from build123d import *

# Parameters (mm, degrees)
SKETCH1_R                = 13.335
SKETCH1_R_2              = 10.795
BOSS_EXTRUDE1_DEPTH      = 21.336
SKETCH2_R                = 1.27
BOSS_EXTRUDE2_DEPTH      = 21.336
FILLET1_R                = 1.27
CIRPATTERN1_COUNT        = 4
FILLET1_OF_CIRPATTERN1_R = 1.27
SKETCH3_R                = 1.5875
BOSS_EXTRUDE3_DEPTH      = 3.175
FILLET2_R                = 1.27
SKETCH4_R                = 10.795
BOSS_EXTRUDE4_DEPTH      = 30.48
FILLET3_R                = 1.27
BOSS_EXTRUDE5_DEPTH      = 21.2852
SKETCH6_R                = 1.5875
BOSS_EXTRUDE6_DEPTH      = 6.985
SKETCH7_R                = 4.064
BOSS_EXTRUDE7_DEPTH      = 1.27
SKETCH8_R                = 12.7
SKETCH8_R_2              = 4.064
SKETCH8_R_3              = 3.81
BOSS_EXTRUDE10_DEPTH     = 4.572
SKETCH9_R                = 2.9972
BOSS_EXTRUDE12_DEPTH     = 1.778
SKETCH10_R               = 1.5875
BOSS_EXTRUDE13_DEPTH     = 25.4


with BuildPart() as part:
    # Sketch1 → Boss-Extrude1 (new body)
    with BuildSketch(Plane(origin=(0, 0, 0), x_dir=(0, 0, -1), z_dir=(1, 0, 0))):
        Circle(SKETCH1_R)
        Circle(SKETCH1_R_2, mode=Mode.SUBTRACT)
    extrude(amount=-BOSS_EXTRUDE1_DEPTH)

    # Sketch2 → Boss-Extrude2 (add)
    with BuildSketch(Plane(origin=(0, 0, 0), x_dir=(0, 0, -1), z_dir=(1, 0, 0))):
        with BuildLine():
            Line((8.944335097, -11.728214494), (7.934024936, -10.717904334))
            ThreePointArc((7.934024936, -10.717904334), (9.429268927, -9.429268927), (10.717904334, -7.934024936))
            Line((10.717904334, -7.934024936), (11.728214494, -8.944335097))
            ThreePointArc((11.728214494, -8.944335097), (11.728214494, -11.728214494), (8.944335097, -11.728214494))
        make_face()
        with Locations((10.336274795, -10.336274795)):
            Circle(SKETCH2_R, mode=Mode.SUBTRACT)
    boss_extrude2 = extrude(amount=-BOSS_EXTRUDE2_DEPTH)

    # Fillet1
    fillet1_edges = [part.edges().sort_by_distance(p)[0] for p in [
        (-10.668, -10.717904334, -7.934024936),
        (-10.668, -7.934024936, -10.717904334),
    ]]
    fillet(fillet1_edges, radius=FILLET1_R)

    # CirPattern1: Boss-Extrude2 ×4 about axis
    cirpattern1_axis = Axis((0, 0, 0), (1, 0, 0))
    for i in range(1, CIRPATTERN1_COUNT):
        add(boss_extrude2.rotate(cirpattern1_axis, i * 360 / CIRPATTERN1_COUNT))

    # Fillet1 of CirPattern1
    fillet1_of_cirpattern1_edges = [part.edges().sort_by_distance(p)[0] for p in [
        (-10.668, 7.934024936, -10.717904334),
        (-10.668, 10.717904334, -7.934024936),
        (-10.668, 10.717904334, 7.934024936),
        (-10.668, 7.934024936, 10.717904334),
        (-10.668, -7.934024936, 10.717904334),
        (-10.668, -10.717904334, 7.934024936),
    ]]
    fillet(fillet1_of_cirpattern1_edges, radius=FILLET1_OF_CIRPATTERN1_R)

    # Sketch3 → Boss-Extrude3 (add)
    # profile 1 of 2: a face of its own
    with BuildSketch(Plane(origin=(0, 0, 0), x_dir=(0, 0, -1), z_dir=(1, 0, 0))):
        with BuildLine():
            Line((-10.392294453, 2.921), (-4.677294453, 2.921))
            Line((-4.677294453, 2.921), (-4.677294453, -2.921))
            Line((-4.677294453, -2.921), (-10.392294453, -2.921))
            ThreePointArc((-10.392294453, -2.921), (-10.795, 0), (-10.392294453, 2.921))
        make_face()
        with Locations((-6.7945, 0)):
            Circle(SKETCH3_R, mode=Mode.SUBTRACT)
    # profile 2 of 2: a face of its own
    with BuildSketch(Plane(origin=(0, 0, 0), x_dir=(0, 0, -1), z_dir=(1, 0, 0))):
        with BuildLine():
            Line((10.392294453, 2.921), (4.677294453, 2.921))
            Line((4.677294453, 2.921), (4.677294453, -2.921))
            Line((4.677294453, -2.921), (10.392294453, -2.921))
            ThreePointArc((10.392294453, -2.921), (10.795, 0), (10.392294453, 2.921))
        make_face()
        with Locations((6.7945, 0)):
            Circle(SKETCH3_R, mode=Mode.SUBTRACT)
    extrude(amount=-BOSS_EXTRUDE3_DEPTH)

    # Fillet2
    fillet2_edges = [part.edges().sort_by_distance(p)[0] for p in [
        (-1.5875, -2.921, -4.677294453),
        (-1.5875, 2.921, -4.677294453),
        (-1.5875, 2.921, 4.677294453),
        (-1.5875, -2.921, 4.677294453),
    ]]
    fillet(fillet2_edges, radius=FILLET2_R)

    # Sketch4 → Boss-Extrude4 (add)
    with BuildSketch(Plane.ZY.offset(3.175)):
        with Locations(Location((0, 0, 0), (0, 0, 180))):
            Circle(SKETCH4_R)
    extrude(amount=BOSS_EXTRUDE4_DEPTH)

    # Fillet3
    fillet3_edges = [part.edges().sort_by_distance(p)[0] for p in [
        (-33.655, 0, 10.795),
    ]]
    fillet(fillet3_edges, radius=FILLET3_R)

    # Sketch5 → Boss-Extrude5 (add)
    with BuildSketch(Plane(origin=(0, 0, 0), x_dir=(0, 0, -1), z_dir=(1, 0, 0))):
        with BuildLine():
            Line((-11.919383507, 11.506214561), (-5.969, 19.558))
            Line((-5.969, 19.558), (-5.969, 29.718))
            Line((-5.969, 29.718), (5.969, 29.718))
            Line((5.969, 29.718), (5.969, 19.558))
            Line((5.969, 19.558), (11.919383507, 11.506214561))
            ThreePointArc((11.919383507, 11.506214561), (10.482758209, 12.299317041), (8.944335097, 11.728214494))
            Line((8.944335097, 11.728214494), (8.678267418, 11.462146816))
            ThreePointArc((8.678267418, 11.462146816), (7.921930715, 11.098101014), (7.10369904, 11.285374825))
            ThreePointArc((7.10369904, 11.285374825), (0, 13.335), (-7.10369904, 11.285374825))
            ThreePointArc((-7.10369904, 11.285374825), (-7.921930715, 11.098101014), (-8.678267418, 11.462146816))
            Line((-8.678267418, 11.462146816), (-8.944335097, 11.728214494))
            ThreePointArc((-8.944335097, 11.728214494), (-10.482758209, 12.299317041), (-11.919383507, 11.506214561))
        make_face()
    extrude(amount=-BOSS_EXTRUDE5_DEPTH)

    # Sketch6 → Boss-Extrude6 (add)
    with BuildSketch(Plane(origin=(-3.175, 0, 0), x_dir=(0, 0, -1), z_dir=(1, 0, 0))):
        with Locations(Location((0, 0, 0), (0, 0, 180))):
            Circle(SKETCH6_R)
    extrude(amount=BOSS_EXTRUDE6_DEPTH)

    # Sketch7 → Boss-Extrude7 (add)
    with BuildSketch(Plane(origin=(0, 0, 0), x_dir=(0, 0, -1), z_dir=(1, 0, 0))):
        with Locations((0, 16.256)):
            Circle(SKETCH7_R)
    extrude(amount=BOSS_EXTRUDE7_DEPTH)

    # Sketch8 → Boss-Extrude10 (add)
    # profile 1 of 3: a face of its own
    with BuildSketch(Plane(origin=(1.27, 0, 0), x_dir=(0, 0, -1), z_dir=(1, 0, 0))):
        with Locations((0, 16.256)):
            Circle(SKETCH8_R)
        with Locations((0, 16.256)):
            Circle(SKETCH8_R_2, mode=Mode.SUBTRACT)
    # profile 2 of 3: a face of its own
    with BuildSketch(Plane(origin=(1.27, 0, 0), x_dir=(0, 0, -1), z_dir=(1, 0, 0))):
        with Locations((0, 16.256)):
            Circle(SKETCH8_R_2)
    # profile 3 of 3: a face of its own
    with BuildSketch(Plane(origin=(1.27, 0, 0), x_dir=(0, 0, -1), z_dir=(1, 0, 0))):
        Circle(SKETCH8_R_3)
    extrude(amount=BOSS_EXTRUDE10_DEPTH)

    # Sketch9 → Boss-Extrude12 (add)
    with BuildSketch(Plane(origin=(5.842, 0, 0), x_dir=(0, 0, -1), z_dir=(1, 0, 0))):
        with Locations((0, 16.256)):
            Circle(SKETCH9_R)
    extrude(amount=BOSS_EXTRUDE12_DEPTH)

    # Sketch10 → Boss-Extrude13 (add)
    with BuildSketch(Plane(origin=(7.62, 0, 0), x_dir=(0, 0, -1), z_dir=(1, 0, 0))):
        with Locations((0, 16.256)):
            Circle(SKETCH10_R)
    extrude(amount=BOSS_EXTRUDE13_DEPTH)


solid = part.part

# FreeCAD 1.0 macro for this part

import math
import FreeCAD as App
import Part
import Sketcher

V = App.Vector
Q = App.Units.Quantity


def edges_at(feature, points):
    """Names of the edges that pass closest to the given points."""
    edges = feature.Shape.Edges
    near = lambda p: min(range(len(edges)), key=lambda i: edges[i].distToShape(Part.Vertex(*p))[0])
    return sorted({f"Edge{near(p) + 1}" for p in points})

doc = App.newDocument("Part")
body = doc.addObject("PartDesign::Body", "Body")

sketch1 = body.newObject("Sketcher::SketchObject", "Sketch")
sketch1.AttachmentSupport = (doc.getObject("YZ_Plane"), [""])
sketch1.MapMode = "FlatFace"
sketch1.addGeometry([
    Part.Circle(V(0, 0, 0), V(0, 0, 1), 13.335),
    Part.Circle(V(0, 0, 0), V(0, 0, 1), 10.795),
], False)
sketch1.addConstraint([
    Sketcher.Constraint("Coincident", 0, 3, -1, 1),
    Sketcher.Constraint("Coincident", 1, 3, -1, 1),
    Sketcher.Constraint("Diameter", 0, Q("1.05 in")),
    Sketcher.Constraint("Diameter", 1, Q("0.85 in")),
])
pad1 = body.newObject("PartDesign::Pad", "Pad")
pad1.Profile = sketch1
pad1.Length = Q("0.84 in")
pad1.Reversed = True

sketch2 = body.newObject("Sketcher::SketchObject", "Sketch001")
sketch2.AttachmentSupport = (doc.getObject("YZ_Plane"), [""])
sketch2.MapMode = "FlatFace"
sketch2.addGeometry([
    Part.LineSegment(V(-10.717904, -7.934025, 0), V(-11.728214, -8.944335, 0)),
    Part.ArcOfCircle(Part.Circle(V(-10.336275, -10.336275, 0), V(0, 0, 1), 1.9685), math.radians(135), math.radians(315)),
    Part.LineSegment(V(-8.944335, -11.728214, 0), V(-7.934025, -10.717904, 0)),
    Part.ArcOfCircle(Part.Circle(V(0, 0, 0), V(0, 0, 1), 13.335), math.radians(-143.488972), math.radians(-126.511028)),
    Part.Circle(V(-10.336275, -10.336275, 0), V(0, 0, 1), 1.27),
], False)
sketch2.addConstraint([
    Sketcher.Constraint("Tangent", 0, 2, 1, 1),
    Sketcher.Constraint("Tangent", 1, 2, 2, 1),
    Sketcher.Constraint("Coincident", 2, 2, 3, 2),
    Sketcher.Constraint("Coincident", 3, 1, 0, 1),
    Sketcher.Constraint("Coincident", 3, 3, -1, 1),
    Sketcher.Constraint("Coincident", 4, 3, 1, 3),
    Sketcher.Constraint("Parallel", 0, 2),
    Sketcher.Constraint("Equal", 0, 2),
    Sketcher.Constraint("Diameter", 4, Q("0.1 in")),
    Sketcher.Constraint("Angle", 0, Q("-135 deg")),
    Sketcher.Constraint("Radius", 3, Q("0.525 in")),
    Sketcher.Constraint("Radius", 1, Q("0.0775 in")),
    Sketcher.Constraint("DistanceX", 1, 2, 2, 2, 1.01031),
])
pad2 = body.newObject("PartDesign::Pad", "Pad001")
pad2.Profile = sketch2
pad2.Length = Q("0.84 in")
pad2.Reversed = True
doc.recompute()

fillet = body.newObject("PartDesign::Fillet", "Fillet")
fillet.Base = (pad2, edges_at(pad2, [(-10.668, -10.718, -7.934), (-10.668, -7.934, -10.718)]))
fillet.Radius = Q("0.05 in")
doc.recompute()

polarpattern = body.newObject("PartDesign::PolarPattern", "PolarPattern")
polarpattern.Originals = [pad2]
polarpattern.Axis = (doc.getObject("X_Axis"), [""])
polarpattern.Angle = 360
polarpattern.Occurrences = 4
body.Tip = polarpattern
doc.recompute()

fillet2 = body.newObject("PartDesign::Fillet", "Fillet001")
fillet2.Base = (polarpattern, edges_at(polarpattern, [
    (-10.668, 7.934, -10.718),
    (-10.668, 10.718, -7.934),
    (-10.668, 10.718, 7.934),
    (-10.668, 7.934, 10.718),
    (-10.668, -7.934, 10.718),
    (-10.668, -10.718, 7.934),
]))
fillet2.Radius = Q("0.05 in")

sketch3 = body.newObject("Sketcher::SketchObject", "Sketch002")
sketch3.AttachmentSupport = (doc.getObject("YZ_Plane"), [""])
sketch3.MapMode = "FlatFace"
sketch3.addGeometry([
    Part.LineSegment(V(2.921, 4.677294, 0), V(2.921, 10.392294, 0)),
    Part.ArcOfCircle(Part.Circle(V(0, 0, 0), V(0, 0, 1), 10.795), math.radians(74.300727), math.radians(105.699273)),
    Part.LineSegment(V(-2.921, 10.392294, 0), V(-2.921, 4.677294, 0)),
    Part.LineSegment(V(-2.921, 4.677294, 0), V(2.921, 4.677294, 0)),
    Part.Circle(V(0, 6.7945, 0), V(0, 0, 1), 1.5875),
    Part.LineSegment(V(2.921, -10.392294, 0), V(2.921, -4.677294, 0)),
    Part.LineSegment(V(2.921, -4.677294, 0), V(-2.921, -4.677294, 0)),
    Part.LineSegment(V(-2.921, -4.677294, 0), V(-2.921, -10.392294, 0)),
    Part.ArcOfCircle(Part.Circle(V(0, 0, 0), V(0, 0, 1), 10.795), math.radians(-105.699273), math.radians(-74.300727)),
    Part.Circle(V(0, -6.7945, 0), V(0, 0, 1), 1.5875),
], False)
sketch3.addConstraint([
    Sketcher.Constraint("Coincident", 0, 2, 1, 1),
    Sketcher.Constraint("Coincident", 1, 2, 2, 1),
    Sketcher.Constraint("Coincident", 2, 2, 3, 1),
    Sketcher.Constraint("Coincident", 3, 2, 0, 1),
    Sketcher.Constraint("Coincident", 5, 2, 6, 1),
    Sketcher.Constraint("Coincident", 6, 2, 7, 1),
    Sketcher.Constraint("Coincident", 7, 2, 8, 1),
    Sketcher.Constraint("Coincident", 8, 2, 5, 1),
    Sketcher.Constraint("Vertical", 0),
    Sketcher.Constraint("Vertical", 2),
    Sketcher.Constraint("Horizontal", 3),
    Sketcher.Constraint("Vertical", 5),
    Sketcher.Constraint("Horizontal", 6),
    Sketcher.Constraint("Vertical", 7),
    Sketcher.Constraint("Coincident", 1, 3, -1, 1),
    Sketcher.Constraint("Coincident", 8, 3, -1, 1),
    Sketcher.Constraint("Equal", 1, 8),
    Sketcher.Constraint("Equal", 4, 9),
    Sketcher.Constraint("Symmetric", 4, 3, 9, 3, -1, 1),
    Sketcher.Constraint("Symmetric", 2, 2, 5, 2, -1, 1),
    Sketcher.Constraint("PointOnObject", 4, 3, -2),
    Sketcher.Constraint("Horizontal", 0, 2, 1, 2),
    Sketcher.Constraint("Horizontal", 7, 2, 8, 2),
    Sketcher.Constraint("Diameter", 4, Q("0.125 in")),
    Sketcher.Constraint("Radius", 1, Q("0.425 in")),
    Sketcher.Constraint("DistanceX", 3, 1, 3, 2, Q("0.23 in")),
    Sketcher.Constraint("DistanceY", 0, 1, 0, 2, Q("0.225 in")),
    Sketcher.Constraint("DistanceY", 9, 3, 4, 3, Q("0.535 in")),
])
pad3 = body.newObject("PartDesign::Pad", "Pad002")
pad3.Profile = sketch3
pad3.Length = Q("0.125 in")
pad3.Reversed = True
doc.recompute()

fillet3 = body.newObject("PartDesign::Fillet", "Fillet002")
fillet3.Base = (pad3, edges_at(pad3, [
    (-1.587, -2.921, -4.677),
    (-1.587, 2.921, -4.677),
    (-1.587, 2.921, 4.677),
    (-1.587, -2.921, 4.677),
]))
fillet3.Radius = Q("0.05 in")

sketch4 = body.newObject("Sketcher::SketchObject", "Sketch003")
sketch4.AttachmentSupport = (doc.getObject("YZ_Plane"), [""])
sketch4.MapMode = "FlatFace"
sketch4.AttachmentOffset = App.Placement(V(0, 0, -0.125 * 25.4), App.Rotation())
sketch4.addGeometry(Part.Circle(V(0, 0, 0), V(0, 0, 1), 10.795), False)
sketch4.addConstraint([
    Sketcher.Constraint("Coincident", 0, 3, -1, 1),
    Sketcher.Constraint("Diameter", 0, Q("0.85 in")),
])
pad4 = body.newObject("PartDesign::Pad", "Pad003")
pad4.Profile = sketch4
pad4.Length = Q("1.2 in")
pad4.Reversed = True
doc.recompute()

fillet4 = body.newObject("PartDesign::Fillet", "Fillet003")
fillet4.Base = (pad4, edges_at(pad4, [(-33.655, 0, 10.795)]))
fillet4.Radius = Q("0.05 in")

sketch5 = body.newObject("Sketcher::SketchObject", "Sketch004")
sketch5.AttachmentSupport = (doc.getObject("YZ_Plane"), [""])
sketch5.MapMode = "FlatFace"
sketch5.addGeometry([
    Part.LineSegment(V(19.558, 5.969, 0), V(11.506215, 11.919384, 0)),
    Part.ArcOfCircle(Part.Circle(V(10.336275, 10.336275, 0), V(0, 0, 1), 1.9685), math.radians(-45), math.radians(53.535074)),
    Part.LineSegment(V(11.728214, 8.944335, 0), V(11.462147, 8.678267, 0)),
    Part.ArcOfCircle(Part.Circle(V(12.360172, 7.780242, 0), V(0, 0, 1), 1.27), math.radians(135), math.radians(212.188799)),
    Part.ArcOfCircle(Part.Circle(V(0, 0, 0), V(0, 0, 1), 13.335), math.radians(-32.188799), math.radians(32.188799)),
    Part.ArcOfCircle(Part.Circle(V(12.360172, -7.780242, 0), V(0, 0, 1), 1.27), math.radians(147.811201), math.radians(225)),
    Part.LineSegment(V(11.462147, -8.678267, 0), V(11.728214, -8.944335, 0)),
    Part.ArcOfCircle(Part.Circle(V(10.336275, -10.336275, 0), V(0, 0, 1), 1.9685), math.radians(-53.535074), math.radians(45)),
    Part.LineSegment(V(11.506215, -11.919384, 0), V(19.558, -5.969, 0)),
    Part.LineSegment(V(19.558, -5.969, 0), V(29.718, -5.969, 0)),
    Part.LineSegment(V(29.718, -5.969, 0), V(29.718, 5.969, 0)),
    Part.LineSegment(V(29.718, 5.969, 0), V(19.558, 5.969, 0)),
], False)
sketch5.addConstraint([
    Sketcher.Constraint("Tangent", 0, 2, 1, 2),
    Sketcher.Constraint("Tangent", 1, 1, 2, 1),
    Sketcher.Constraint("Tangent", 2, 2, 3, 1),
    Sketcher.Constraint("Tangent", 3, 2, 4, 2),
    Sketcher.Constraint("Tangent", 4, 1, 5, 1),
    Sketcher.Constraint("Tangent", 5, 2, 6, 1),
    Sketcher.Constraint("Tangent", 6, 2, 7, 2),
    Sketcher.Constraint("Tangent", 7, 1, 8, 1),
    Sketcher.Constraint("Coincident", 8, 2, 9, 1),
    Sketcher.Constraint("Coincident", 9, 2, 10, 1),
    Sketcher.Constraint("Coincident", 10, 2, 11, 1),
    Sketcher.Constraint("Coincident", 11, 2, 0, 1),
    Sketcher.Constraint("Horizontal", 9),
    Sketcher.Constraint("Vertical", 10),
    Sketcher.Constraint("Horizontal", 11),
    Sketcher.Constraint("Coincident", 4, 3, -1, 1),
    Sketcher.Constraint("Equal", 3, 5),
    Sketcher.Constraint("Equal", 1, 7),
    Sketcher.Constraint("Symmetric", 1, 3, 7, 3, -1),
    Sketcher.Constraint("Symmetric", 8, 2, 11, 2, -1),
    Sketcher.Constraint("Perpendicular", 2, 6),
    Sketcher.Constraint("Vertical", 3, 3, 5, 3),
    Sketcher.Constraint("Radius", 3, Q("0.05 in")),
    Sketcher.Constraint("DistanceX", 9, 1, 9, 2, Q("0.4 in")),
    Sketcher.Constraint("Radius", 4, Q("0.525 in")),
    Sketcher.Constraint("DistanceY", 10, 1, 10, 2, Q("0.47 in")),
    Sketcher.Constraint("Radius", 1, Q("0.0775 in")),
    Sketcher.Constraint("DistanceX", -1, 1, 8, 2, Q("0.77 in")),
    Sketcher.Constraint("DistanceY", -1, 1, 3, 2, 7.103699),
    Sketcher.Constraint("DistanceX", 0, 2, 1, 1, 0.222),
])
pad5 = body.newObject("PartDesign::Pad", "Pad004")
pad5.Profile = sketch5
pad5.Length = Q("0.838 in")
pad5.Reversed = True

sketch6 = body.newObject("Sketcher::SketchObject", "Sketch005")
sketch6.AttachmentSupport = (doc.getObject("YZ_Plane"), [""])
sketch6.MapMode = "FlatFace"
sketch6.AttachmentOffset = App.Placement(V(0, 0, -0.125 * 25.4), App.Rotation())
sketch6.addGeometry(Part.Circle(V(0, 0, 0), V(0, 0, 1), 1.5875), False)
sketch6.addConstraint([
    Sketcher.Constraint("Coincident", 0, 3, -1, 1),
    Sketcher.Constraint("Diameter", 0, Q("0.125 in")),
])
pad6 = body.newObject("PartDesign::Pad", "Pad005")
pad6.Profile = sketch6
pad6.Length = Q("0.275 in")

sketch7 = body.newObject("Sketcher::SketchObject", "Sketch006")
sketch7.AttachmentSupport = (doc.getObject("YZ_Plane"), [""])
sketch7.MapMode = "FlatFace"
sketch7.addGeometry(Part.Circle(V(16.256, 0, 0), V(0, 0, 1), 4.064), False)
sketch7.addConstraint([
    Sketcher.Constraint("PointOnObject", 0, 3, -1),
    Sketcher.Constraint("Diameter", 0, Q("0.32 in")),
    Sketcher.Constraint("DistanceX", -1, 1, 0, 3, Q("0.64 in")),
])
pad7 = body.newObject("PartDesign::Pad", "Pad006")
pad7.Profile = sketch7
pad7.Length = Q("0.05 in")

sketch8 = body.newObject("Sketcher::SketchObject", "Sketch007")
sketch8.AttachmentSupport = (doc.getObject("YZ_Plane"), [""])
sketch8.MapMode = "FlatFace"
sketch8.AttachmentOffset = App.Placement(V(0, 0, 0.05 * 25.4), App.Rotation())
sketch8.addGeometry([
    Part.ArcOfCircle(Part.Circle(V(16.256, 0, 0), V(0, 0, 1), 12.7), math.radians(-174.543543), math.radians(174.543543)),
    Part.ArcOfCircle(Part.Circle(V(0, 0, 0), V(0, 0, 1), 3.81), math.radians(18.479432), math.radians(341.520568)),
], False)
sketch8.addConstraint([
    Sketcher.Constraint("Coincident", 0, 1, 1, 2),
    Sketcher.Constraint("Coincident", 1, 1, 0, 2),
    Sketcher.Constraint("Coincident", 1, 3, -1, 1),
    Sketcher.Constraint("PointOnObject", 0, 3, -1),
    Sketcher.Constraint("Radius", 0, Q("0.5 in")),
    Sketcher.Constraint("Radius", 1, Q("0.15 in")),
    Sketcher.Constraint("DistanceX", -1, 1, 0, 3, Q("0.64 in")),
])
pad8 = body.newObject("PartDesign::Pad", "Pad007")
pad8.Profile = sketch8
pad8.Length = Q("0.18 in")

sketch9 = body.newObject("Sketcher::SketchObject", "Sketch008")
sketch9.AttachmentSupport = (doc.getObject("YZ_Plane"), [""])
sketch9.MapMode = "FlatFace"
sketch9.AttachmentOffset = App.Placement(V(0, 0, 0.23 * 25.4), App.Rotation())
sketch9.addGeometry(Part.Circle(V(16.256, 0, 0), V(0, 0, 1), 2.9972), False)
sketch9.addConstraint([
    Sketcher.Constraint("PointOnObject", 0, 3, -1),
    Sketcher.Constraint("Diameter", 0, Q("0.236 in")),
    Sketcher.Constraint("DistanceX", -1, 1, 0, 3, Q("0.64 in")),
])
pad9 = body.newObject("PartDesign::Pad", "Pad008")
pad9.Profile = sketch9
pad9.Length = Q("0.07 in")

sketch10 = body.newObject("Sketcher::SketchObject", "Sketch009")
sketch10.AttachmentSupport = (doc.getObject("YZ_Plane"), [""])
sketch10.MapMode = "FlatFace"
sketch10.AttachmentOffset = App.Placement(V(0, 0, 0.3 * 25.4), App.Rotation())
sketch10.addGeometry(Part.Circle(V(16.256, 0, 0), V(0, 0, 1), 1.5875), False)
sketch10.addConstraint([
    Sketcher.Constraint("PointOnObject", 0, 3, -1),
    Sketcher.Constraint("Diameter", 0, Q("0.125 in")),
    Sketcher.Constraint("DistanceX", -1, 1, 0, 3, Q("0.64 in")),
])
pad10 = body.newObject("PartDesign::Pad", "Pad009")
pad10.Profile = sketch10
pad10.Length = Q("1 in")

doc.recompute()
